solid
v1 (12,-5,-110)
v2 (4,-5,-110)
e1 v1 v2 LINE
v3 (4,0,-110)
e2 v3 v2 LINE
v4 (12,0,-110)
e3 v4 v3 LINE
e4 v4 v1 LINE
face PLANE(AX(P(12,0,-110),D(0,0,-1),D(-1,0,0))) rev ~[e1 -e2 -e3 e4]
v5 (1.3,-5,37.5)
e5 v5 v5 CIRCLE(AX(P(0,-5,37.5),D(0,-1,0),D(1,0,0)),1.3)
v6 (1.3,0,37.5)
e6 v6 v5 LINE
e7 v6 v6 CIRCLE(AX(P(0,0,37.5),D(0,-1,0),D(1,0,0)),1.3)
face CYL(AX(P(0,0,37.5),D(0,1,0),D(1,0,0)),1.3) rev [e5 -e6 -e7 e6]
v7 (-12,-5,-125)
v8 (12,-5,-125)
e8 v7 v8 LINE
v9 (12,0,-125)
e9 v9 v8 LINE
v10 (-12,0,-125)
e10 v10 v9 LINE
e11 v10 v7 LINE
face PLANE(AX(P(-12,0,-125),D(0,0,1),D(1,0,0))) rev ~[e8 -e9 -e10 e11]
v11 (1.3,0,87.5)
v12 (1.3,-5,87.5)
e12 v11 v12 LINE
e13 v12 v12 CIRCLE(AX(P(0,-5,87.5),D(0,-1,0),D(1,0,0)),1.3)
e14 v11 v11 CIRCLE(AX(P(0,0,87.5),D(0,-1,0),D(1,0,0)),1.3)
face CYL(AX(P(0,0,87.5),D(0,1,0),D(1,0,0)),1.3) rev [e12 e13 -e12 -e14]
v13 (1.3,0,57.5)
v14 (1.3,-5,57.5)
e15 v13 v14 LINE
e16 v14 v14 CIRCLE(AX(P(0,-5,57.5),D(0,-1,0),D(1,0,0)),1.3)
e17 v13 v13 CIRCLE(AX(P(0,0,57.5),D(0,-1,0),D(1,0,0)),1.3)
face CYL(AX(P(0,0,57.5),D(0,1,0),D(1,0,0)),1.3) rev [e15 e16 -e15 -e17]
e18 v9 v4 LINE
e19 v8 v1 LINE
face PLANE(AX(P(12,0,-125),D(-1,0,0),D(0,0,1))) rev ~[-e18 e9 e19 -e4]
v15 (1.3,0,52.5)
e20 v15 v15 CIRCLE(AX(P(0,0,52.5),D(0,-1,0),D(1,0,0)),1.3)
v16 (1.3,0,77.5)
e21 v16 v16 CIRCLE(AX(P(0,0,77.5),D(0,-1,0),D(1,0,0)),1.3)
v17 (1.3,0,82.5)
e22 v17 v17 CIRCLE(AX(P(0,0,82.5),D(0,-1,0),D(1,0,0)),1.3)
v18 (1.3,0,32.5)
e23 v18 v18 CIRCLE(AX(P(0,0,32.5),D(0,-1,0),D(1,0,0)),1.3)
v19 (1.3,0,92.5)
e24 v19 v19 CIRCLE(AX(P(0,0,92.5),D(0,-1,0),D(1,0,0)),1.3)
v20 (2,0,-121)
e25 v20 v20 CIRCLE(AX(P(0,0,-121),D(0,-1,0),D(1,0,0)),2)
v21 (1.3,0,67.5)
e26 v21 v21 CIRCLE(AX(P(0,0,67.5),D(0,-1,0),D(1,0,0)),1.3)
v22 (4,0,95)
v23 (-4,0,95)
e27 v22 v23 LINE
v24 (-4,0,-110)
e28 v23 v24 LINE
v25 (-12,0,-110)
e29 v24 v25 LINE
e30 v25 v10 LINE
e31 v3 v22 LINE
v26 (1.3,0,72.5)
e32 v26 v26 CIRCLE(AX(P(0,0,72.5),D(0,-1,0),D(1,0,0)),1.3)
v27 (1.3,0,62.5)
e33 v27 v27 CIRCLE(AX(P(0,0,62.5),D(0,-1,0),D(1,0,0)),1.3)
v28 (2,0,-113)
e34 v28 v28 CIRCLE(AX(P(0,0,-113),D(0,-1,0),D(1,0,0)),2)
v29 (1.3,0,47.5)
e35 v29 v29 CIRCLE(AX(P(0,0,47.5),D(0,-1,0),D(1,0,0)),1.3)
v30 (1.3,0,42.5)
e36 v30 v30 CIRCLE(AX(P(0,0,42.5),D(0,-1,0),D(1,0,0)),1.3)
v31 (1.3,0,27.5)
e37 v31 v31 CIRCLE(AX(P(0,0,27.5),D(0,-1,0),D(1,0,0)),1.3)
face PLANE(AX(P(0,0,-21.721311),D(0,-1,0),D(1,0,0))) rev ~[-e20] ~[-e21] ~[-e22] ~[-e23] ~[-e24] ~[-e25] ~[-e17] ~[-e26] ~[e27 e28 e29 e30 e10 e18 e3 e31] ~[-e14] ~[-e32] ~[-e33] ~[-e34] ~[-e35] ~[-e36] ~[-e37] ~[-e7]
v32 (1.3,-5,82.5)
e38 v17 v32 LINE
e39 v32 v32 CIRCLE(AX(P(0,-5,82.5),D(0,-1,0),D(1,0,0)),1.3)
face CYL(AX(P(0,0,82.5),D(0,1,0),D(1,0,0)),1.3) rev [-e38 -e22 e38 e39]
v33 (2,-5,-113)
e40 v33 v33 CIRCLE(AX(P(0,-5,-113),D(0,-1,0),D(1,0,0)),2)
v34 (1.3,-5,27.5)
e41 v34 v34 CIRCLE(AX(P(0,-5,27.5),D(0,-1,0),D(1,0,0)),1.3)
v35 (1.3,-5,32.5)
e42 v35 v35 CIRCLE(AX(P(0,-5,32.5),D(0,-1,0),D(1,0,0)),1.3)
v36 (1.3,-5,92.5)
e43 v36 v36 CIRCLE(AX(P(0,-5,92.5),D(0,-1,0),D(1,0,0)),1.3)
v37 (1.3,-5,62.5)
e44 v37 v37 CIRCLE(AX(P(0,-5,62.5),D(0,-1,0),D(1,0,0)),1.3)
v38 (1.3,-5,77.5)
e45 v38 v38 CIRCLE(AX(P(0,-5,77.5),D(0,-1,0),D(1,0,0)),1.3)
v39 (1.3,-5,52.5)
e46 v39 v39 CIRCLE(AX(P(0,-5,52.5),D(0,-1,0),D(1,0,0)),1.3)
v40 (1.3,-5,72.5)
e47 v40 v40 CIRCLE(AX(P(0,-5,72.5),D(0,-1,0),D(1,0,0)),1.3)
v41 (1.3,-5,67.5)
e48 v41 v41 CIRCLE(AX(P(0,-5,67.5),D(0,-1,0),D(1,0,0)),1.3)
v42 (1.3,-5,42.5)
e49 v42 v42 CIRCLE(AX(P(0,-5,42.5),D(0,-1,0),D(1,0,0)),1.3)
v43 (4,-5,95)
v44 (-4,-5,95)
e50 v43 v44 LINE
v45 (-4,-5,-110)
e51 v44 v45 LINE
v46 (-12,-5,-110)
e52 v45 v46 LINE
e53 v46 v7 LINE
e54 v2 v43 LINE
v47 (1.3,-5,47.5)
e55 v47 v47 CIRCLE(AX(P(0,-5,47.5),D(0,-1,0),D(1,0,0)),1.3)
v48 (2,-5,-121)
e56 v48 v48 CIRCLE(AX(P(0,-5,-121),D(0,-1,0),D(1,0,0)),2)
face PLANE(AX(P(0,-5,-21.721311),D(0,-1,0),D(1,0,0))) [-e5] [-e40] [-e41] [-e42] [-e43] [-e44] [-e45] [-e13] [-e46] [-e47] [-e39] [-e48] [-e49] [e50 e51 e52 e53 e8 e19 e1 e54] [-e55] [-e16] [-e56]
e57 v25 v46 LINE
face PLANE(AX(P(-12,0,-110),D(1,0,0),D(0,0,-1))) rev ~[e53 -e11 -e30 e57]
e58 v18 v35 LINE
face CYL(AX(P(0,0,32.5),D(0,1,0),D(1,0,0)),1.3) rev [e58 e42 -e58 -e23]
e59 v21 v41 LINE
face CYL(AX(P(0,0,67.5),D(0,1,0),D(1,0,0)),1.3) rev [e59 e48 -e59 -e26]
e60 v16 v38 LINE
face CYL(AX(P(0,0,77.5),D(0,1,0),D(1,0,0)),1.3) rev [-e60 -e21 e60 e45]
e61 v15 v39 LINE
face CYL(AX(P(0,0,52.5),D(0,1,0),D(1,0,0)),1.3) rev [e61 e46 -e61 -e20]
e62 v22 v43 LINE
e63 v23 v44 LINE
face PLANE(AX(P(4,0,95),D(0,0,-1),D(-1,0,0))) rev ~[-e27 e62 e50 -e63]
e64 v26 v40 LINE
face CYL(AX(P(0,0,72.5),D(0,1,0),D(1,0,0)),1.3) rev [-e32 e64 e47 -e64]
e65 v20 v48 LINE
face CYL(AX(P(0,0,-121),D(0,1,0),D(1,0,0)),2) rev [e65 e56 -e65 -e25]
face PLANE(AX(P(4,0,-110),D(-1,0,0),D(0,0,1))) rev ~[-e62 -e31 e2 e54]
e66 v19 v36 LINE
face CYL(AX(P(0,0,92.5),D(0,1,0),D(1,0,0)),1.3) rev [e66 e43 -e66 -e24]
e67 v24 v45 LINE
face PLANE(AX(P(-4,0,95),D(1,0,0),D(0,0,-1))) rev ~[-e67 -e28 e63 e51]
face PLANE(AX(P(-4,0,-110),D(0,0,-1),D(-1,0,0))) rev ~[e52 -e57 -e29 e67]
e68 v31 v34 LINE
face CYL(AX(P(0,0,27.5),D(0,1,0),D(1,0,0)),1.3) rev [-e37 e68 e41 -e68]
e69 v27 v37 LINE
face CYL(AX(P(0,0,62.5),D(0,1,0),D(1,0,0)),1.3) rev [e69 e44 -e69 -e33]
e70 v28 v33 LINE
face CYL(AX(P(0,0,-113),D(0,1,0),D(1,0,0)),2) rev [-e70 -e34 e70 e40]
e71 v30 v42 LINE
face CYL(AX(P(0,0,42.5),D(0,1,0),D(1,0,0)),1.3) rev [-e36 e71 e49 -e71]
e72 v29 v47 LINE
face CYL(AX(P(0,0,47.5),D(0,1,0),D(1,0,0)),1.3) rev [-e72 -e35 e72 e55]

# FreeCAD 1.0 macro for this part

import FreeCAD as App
import Part
import Sketcher

doc = App.newDocument("Part")
body = doc.addObject("PartDesign::Body", "Body")

sketch1 = doc.addObject("Sketcher::SketchObject", "Sketch")
body.addObject(sketch1)
sketch1.AttachmentSupport = (doc.XZ_Plane, [""])
sketch1.MapMode = "FlatFace"
sketch1.addGeometry([
    Part.LineSegment(App.Vector(12, -125, 0), App.Vector(12, -110, 0)),
    Part.LineSegment(App.Vector(12, -110, 0), App.Vector(4, -110, 0)),
    Part.LineSegment(App.Vector(4, -110, 0), App.Vector(4, 95, 0)),
    Part.LineSegment(App.Vector(4, 95, 0), App.Vector(-4, 95, 0)),
    Part.LineSegment(App.Vector(-4, 95, 0), App.Vector(-4, -110, 0)),
    Part.LineSegment(App.Vector(-4, -110, 0), App.Vector(-12, -110, 0)),
    Part.LineSegment(App.Vector(-12, -110, 0), App.Vector(-12, -125, 0)),
    Part.LineSegment(App.Vector(-12, -125, 0), App.Vector(12, -125, 0)),
    Part.Circle(App.Vector(0, -121, 0), App.Vector(0, 0, 1), 2),
    Part.Circle(App.Vector(0, -113, 0), App.Vector(0, 0, 1), 2),
    Part.Circle(App.Vector(0, 27.5, 0), App.Vector(0, 0, 1), 1.3),
    Part.Circle(App.Vector(0, 32.5, 0), App.Vector(0, 0, 1), 1.3),
    Part.Circle(App.Vector(0, 37.5, 0), App.Vector(0, 0, 1), 1.3),
    Part.Circle(App.Vector(0, 42.5, 0), App.Vector(0, 0, 1), 1.3),
    Part.Circle(App.Vector(0, 47.5, 0), App.Vector(0, 0, 1), 1.3),
    Part.Circle(App.Vector(0, 52.5, 0), App.Vector(0, 0, 1), 1.3),
    Part.Circle(App.Vector(0, 57.5, 0), App.Vector(0, 0, 1), 1.3),
    Part.Circle(App.Vector(0, 62.5, 0), App.Vector(0, 0, 1), 1.3),
    Part.Circle(App.Vector(0, 67.5, 0), App.Vector(0, 0, 1), 1.3),
    Part.Circle(App.Vector(0, 72.5, 0), App.Vector(0, 0, 1), 1.3),
    Part.Circle(App.Vector(0, 77.5, 0), App.Vector(0, 0, 1), 1.3),
    Part.Circle(App.Vector(0, 82.5, 0), App.Vector(0, 0, 1), 1.3),
    Part.Circle(App.Vector(0, 87.5, 0), App.Vector(0, 0, 1), 1.3),
    Part.Circle(App.Vector(0, 92.5, 0), App.Vector(0, 0, 1), 1.3),
], False)
sketch1.addConstraint([
    Sketcher.Constraint("Coincident", 0, 2, 1, 1),
    Sketcher.Constraint("Coincident", 1, 2, 2, 1),
    Sketcher.Constraint("Coincident", 2, 2, 3, 1),
    Sketcher.Constraint("Coincident", 3, 2, 4, 1),
    Sketcher.Constraint("Coincident", 4, 2, 5, 1),
    Sketcher.Constraint("Coincident", 5, 2, 6, 1),
    Sketcher.Constraint("Coincident", 6, 2, 7, 1),
    Sketcher.Constraint("Coincident", 7, 2, 0, 1),
    Sketcher.Constraint("Vertical", 0),
    Sketcher.Constraint("Horizontal", 1),
    Sketcher.Constraint("Vertical", 2),
    Sketcher.Constraint("Horizontal", 3),
    Sketcher.Constraint("Vertical", 4),
    Sketcher.Constraint("Horizontal", 5),
    Sketcher.Constraint("Vertical", 6),
    Sketcher.Constraint("Horizontal", 7),
    Sketcher.Constraint("Equal", 8, 9),
    Sketcher.Constraint("Equal", 10, 11),
    Sketcher.Constraint("Equal", 11, 12),
    Sketcher.Constraint("Equal", 12, 13),
    Sketcher.Constraint("Equal", 13, 14),
    Sketcher.Constraint("Equal", 14, 15),
    Sketcher.Constraint("Equal", 15, 16),
    Sketcher.Constraint("Equal", 16, 17),
    Sketcher.Constraint("Equal", 17, 18),
    Sketcher.Constraint("Equal", 18, 19),
    Sketcher.Constraint("Equal", 19, 20),
    Sketcher.Constraint("Equal", 20, 21),
    Sketcher.Constraint("Equal", 21, 22),
    Sketcher.Constraint("Equal", 22, 23),
    Sketcher.Constraint("Symmetric", 1, 2, 4, 2, -2),
    Sketcher.Constraint("PointOnObject", 8, 3, -2),
    Sketcher.Constraint("PointOnObject", 9, 3, -2),
    Sketcher.Constraint("PointOnObject", 10, 3, -2),
    Sketcher.Constraint("PointOnObject", 11, 3, -2),
    Sketcher.Constraint("PointOnObject", 12, 3, -2),
    Sketcher.Constraint("PointOnObject", 13, 3, -2),
    Sketcher.Constraint("PointOnObject", 14, 3, -2),
    Sketcher.Constraint("PointOnObject", 15, 3, -2),
    Sketcher.Constraint("PointOnObject", 16, 3, -2),
    Sketcher.Constraint("PointOnObject", 17, 3, -2),
    Sketcher.Constraint("PointOnObject", 18, 3, -2),
    Sketcher.Constraint("PointOnObject", 19, 3, -2),
    Sketcher.Constraint("PointOnObject", 20, 3, -2),
    Sketcher.Constraint("PointOnObject", 21, 3, -2),
    Sketcher.Constraint("PointOnObject", 22, 3, -2),
    Sketcher.Constraint("PointOnObject", 23, 3, -2),
    Sketcher.Constraint("Equal", 1, 3),
    Sketcher.Constraint("Equal", 3, 5),
    Sketcher.Constraint("Diameter", 8, 4.0),
    Sketcher.Constraint("Diameter", 10, 2.6),
    Sketcher.Constraint("DistanceX", 1, 2, 1, 1, 8.0),
    Sketcher.Constraint("DistanceY", 0, 1, 0, 2, 15.0),
    Sketcher.Constraint("DistanceY", 2, 1, 2, 2, 205.0),
    Sketcher.Constraint("DistanceY", 8, 3, -1, 1, 121.0),
    Sketcher.Constraint("DistanceY", 9, 3, -1, 1, 113.0),
    Sketcher.Constraint("DistanceY", 0, 2, -1, 1, 110.0),
    Sketcher.Constraint("DistanceY", 10, 3, 11, 3, 5.0),
    Sketcher.Constraint("DistanceY", 11, 3, 12, 3, 5.0),
    Sketcher.Constraint("DistanceY", 12, 3, 13, 3, 5.0),
    Sketcher.Constraint("DistanceY", 13, 3, 14, 3, 5.0),
    Sketcher.Constraint("DistanceY", 14, 3, 15, 3, 5.0),
    Sketcher.Constraint("DistanceY", 15, 3, 16, 3, 5.0),
    Sketcher.Constraint("DistanceY", 16, 3, 17, 3, 5.0),
    Sketcher.Constraint("DistanceY", 17, 3, 18, 3, 5.0),
    Sketcher.Constraint("DistanceY", 18, 3, 19, 3, 5.0),
    Sketcher.Constraint("DistanceY", 19, 3, 20, 3, 5.0),
    Sketcher.Constraint("DistanceY", 20, 3, 21, 3, 5.0),
    Sketcher.Constraint("DistanceY", 21, 3, 22, 3, 5.0),
    Sketcher.Constraint("DistanceY", 22, 3, 23, 3, 5.0),
    Sketcher.Constraint("DistanceY", -1, 1, 10, 3, 27.5),
])
pad1 = doc.addObject("PartDesign::Pad", "Pad")
body.addObject(pad1)
pad1.Profile = sketch1
pad1.Length = 5

doc.recompute()
